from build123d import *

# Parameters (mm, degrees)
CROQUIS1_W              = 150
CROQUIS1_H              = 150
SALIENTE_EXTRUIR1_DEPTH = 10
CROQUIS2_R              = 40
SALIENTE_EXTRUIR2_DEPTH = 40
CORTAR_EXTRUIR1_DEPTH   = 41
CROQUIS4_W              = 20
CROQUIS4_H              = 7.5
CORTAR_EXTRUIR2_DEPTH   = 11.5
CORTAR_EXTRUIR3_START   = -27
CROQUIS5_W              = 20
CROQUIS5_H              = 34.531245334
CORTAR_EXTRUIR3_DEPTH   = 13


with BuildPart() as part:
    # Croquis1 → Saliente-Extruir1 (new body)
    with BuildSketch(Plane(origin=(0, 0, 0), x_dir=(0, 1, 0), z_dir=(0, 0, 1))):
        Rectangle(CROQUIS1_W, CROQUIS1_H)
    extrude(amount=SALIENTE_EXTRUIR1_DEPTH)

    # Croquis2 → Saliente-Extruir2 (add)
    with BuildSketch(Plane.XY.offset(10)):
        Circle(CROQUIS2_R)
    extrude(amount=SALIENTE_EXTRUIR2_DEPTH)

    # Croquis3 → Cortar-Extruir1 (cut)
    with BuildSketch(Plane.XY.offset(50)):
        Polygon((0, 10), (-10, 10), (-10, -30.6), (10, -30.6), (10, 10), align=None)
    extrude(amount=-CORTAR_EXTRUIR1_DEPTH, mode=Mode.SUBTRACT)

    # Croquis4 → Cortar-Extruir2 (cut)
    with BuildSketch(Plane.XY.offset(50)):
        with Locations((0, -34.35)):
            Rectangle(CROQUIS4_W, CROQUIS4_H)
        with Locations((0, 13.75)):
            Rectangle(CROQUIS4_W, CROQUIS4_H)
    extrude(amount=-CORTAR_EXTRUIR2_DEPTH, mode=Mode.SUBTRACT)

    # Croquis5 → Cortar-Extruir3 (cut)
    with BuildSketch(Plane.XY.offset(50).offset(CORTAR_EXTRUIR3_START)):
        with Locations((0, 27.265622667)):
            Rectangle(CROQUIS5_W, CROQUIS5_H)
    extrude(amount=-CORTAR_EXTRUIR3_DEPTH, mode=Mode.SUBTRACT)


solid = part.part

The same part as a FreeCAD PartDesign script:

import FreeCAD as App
import Part
import Sketcher

V = App.Vector
Q = App.Units.Quantity


def add_polygon(sketch, points):
    """Adds a closed chain of lines whose ends are joined by coincident constraints."""
    first, n = sketch.GeometryCount, len(points)
    for a, b in zip(points, points[1:] + points[:1]):
        sketch.addGeometry(Part.LineSegment(App.Vector(*a, 0), App.Vector(*b, 0)), False)
    for i in range(n):
        sketch.addConstraint(Sketcher.Constraint("Coincident", first + i, 2, first + (i + 1) % n, 1))

doc = App.newDocument("Part")
body = doc.addObject("PartDesign::Body", "Body")

# Sketch on XY plane
sketch1 = body.newObject("Sketcher::SketchObject", "Sketch")
sketch1.AttachmentSupport = (doc.getObject("XY_Plane"), [""])
sketch1.MapMode = "FlatFace"
add_polygon(sketch1, [(-75, -75), (75, -75), (75, 75), (-75, 75)])  # lines 0-3
sketch1.addConstraint(Sketcher.Constraint("Horizontal", 0))
sketch1.addConstraint(Sketcher.Constraint("Vertical", 1))
sketch1.addConstraint(Sketcher.Constraint("Horizontal", 2))
sketch1.addConstraint(Sketcher.Constraint("Vertical", 3))
sketch1.addConstraint(Sketcher.Constraint("Symmetric", 0, 2, 2, 2, -1, 1))
sketch1.addConstraint(Sketcher.Constraint("Equal", 2, 1))
sketch1.addConstraint(Sketcher.Constraint("DistanceX", 0, 1, 0, 2, Q("150 mm")))
pad1 = body.newObject("PartDesign::Pad", "Pad")
pad1.Profile = sketch1
pad1.Length = 10

# Sketch on XY plane
sketch2 = body.newObject("Sketcher::SketchObject", "Sketch001")
sketch2.AttachmentSupport = (doc.getObject("XY_Plane"), [""])
sketch2.MapMode = "FlatFace"
sketch2.AttachmentOffset = App.Placement(V(0, 0, 10), App.Rotation())
sketch2.addGeometry(Part.Circle(V(0, 0, 0), V(0, 0, 1), 40), False)
sketch2.addConstraint(Sketcher.Constraint("Coincident", 0, 3, -1, 1))
sketch2.addConstraint(Sketcher.Constraint("Diameter", 0, Q("80 mm")))
pad2 = body.newObject("PartDesign::Pad", "Pad001")
pad2.Profile = sketch2
pad2.Length = 40

# Sketch on XY plane
sketch3 = body.newObject("Sketcher::SketchObject", "Sketch002")
sketch3.AttachmentSupport = (doc.getObject("XY_Plane"), [""])
sketch3.MapMode = "FlatFace"
sketch3.AttachmentOffset = App.Placement(V(0, 0, 50), App.Rotation())
add_polygon(sketch3, [(-10, 10), (-10, -30.6), (10, -30.6), (10, 10)])  # lines 0-3
sketch3.addConstraint(Sketcher.Constraint("Vertical", 0))
sketch3.addConstraint(Sketcher.Constraint("Horizontal", 1))
sketch3.addConstraint(Sketcher.Constraint("Vertical", 2))
sketch3.addConstraint(Sketcher.Constraint("Horizontal", 3))
sketch3.addConstraint(Sketcher.Constraint("DistanceX", 1, 1, 1, 2, Q("20 mm")))
sketch3.addConstraint(Sketcher.Constraint("DistanceY", 0, 2, 0, 1, Q("40.6 mm")))
sketch3.addConstraint(Sketcher.Constraint("DistanceX", 0, 2, -1, 1, Q("10 mm")))
sketch3.addConstraint(Sketcher.Constraint("DistanceY", -1, 1, 2, 2, Q("10 mm")))
pocket1 = body.newObject("PartDesign::Pocket", "Pocket")
pocket1.Profile = sketch3
pocket1.Length = 41

# Sketch on XY plane
sketch4 = body.newObject("Sketcher::SketchObject", "Sketch003")
sketch4.AttachmentSupport = (doc.getObject("XY_Plane"), [""])
sketch4.MapMode = "FlatFace"
sketch4.AttachmentOffset = App.Placement(V(0, 0, 50), App.Rotation())
add_polygon(sketch4, [(-10, -30.6), (-10, -38.1), (10, -38.1), (10, -30.6)])  # lines 0-3
add_polygon(sketch4, [(-10, 17.5), (-10, 10), (10, 10), (10, 17.5)])  # lines 4-7
sketch4.addConstraint(Sketcher.Constraint("Vertical", 0))
sketch4.addConstraint(Sketcher.Constraint("Horizontal", 1))
sketch4.addConstraint(Sketcher.Constraint("Vertical", 2))
sketch4.addConstraint(Sketcher.Constraint("Horizontal", 3))
sketch4.addConstraint(Sketcher.Constraint("Vertical", 4))
sketch4.addConstraint(Sketcher.Constraint("Horizontal", 5))
sketch4.addConstraint(Sketcher.Constraint("Vertical", 6))
sketch4.addConstraint(Sketcher.Constraint("Horizontal", 7))
sketch4.addConstraint(Sketcher.Constraint("Vertical", 3, 2, 4, 2))
sketch4.addConstraint(Sketcher.Constraint("Vertical", 2, 2, 5, 2))
sketch4.addConstraint(Sketcher.Constraint("Equal", 2, 4))
sketch4.addConstraint(Sketcher.Constraint("DistanceX", 1, 1, 1, 2, Q("20 mm")))
sketch4.addConstraint(Sketcher.Constraint("DistanceY", 0, 2, 0, 1, Q("7.5 mm")))
sketch4.addConstraint(Sketcher.Constraint("DistanceX", 0, 2, -1, 1, Q("10 mm")))
sketch4.addConstraint(Sketcher.Constraint("DistanceY", -1, 1, 4, 2, Q("10 mm")))
sketch4.addConstraint(Sketcher.Constraint("DistanceY", 0, 2, -1, 1, Q("38.1 mm")))
pocket2 = body.newObject("PartDesign::Pocket", "Pocket001")
pocket2.Profile = sketch4
pocket2.Length = 11.5

# Sketch on XY plane
sketch5 = body.newObject("Sketcher::SketchObject", "Sketch004")
sketch5.AttachmentSupport = (doc.getObject("XY_Plane"), [""])
sketch5.MapMode = "FlatFace"
sketch5.AttachmentOffset = App.Placement(V(0, 0, 23), App.Rotation())
add_polygon(sketch5, [(-10, 44.531245), (-10, 10), (10, 10), (10, 44.531245)])  # lines 0-3
sketch5.addConstraint(Sketcher.Constraint("Vertical", 0))
sketch5.addConstraint(Sketcher.Constraint("Horizontal", 1))
sketch5.addConstraint(Sketcher.Constraint("Vertical", 2))
sketch5.addConstraint(Sketcher.Constraint("Horizontal", 3))
sketch5.addConstraint(Sketcher.Constraint("DistanceX", 1, 1, 1, 2, Q("20 mm")))
sketch5.addConstraint(Sketcher.Constraint("DistanceX", 0, 2, -1, 1, Q("10 mm")))
sketch5.addConstraint(Sketcher.Constraint("DistanceY", -1, 1, 0, 2, Q("10 mm")))
sketch5.addConstraint(Sketcher.Constraint("DistanceY", 0, 2, 0, 1, Q("34.531245 mm")))
pocket3 = body.newObject("PartDesign::Pocket", "Pocket002")
pocket3.Profile = sketch5
pocket3.Length = 13

doc.recompute()
